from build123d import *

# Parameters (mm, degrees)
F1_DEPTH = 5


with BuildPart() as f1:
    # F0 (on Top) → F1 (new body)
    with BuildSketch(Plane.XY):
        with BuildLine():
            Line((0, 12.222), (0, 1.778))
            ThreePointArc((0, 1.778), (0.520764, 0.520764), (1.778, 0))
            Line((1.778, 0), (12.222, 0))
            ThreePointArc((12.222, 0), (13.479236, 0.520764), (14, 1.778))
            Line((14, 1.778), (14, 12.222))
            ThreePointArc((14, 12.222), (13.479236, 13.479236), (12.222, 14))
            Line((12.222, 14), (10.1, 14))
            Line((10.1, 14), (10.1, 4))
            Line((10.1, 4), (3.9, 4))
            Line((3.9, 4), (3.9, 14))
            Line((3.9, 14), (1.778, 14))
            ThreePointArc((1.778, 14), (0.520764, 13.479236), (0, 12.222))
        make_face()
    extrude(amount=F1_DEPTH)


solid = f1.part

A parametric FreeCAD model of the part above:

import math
import FreeCAD as App
import Part
import Sketcher
from FreeCAD import Vector

doc = App.newDocument("Part")
body = doc.addObject("PartDesign::Body", "Body")

sketch1 = doc.addObject("Sketcher::SketchObject", "Sketch")
body.addObject(sketch1)
sketch1.AttachmentSupport = (doc.XY_Plane, [""])
sketch1.MapMode = "FlatFace"
sketch1.addGeometry([
    Part.LineSegment(Vector(0, 12.222, 0), Vector(0, 1.778, 0)),
    Part.ArcOfCircle(Part.Circle(Vector(1.778, 1.778, 0), Vector(0, 0, 1), 1.778), math.radians(179.999984), math.radians(270.000016)),
    Part.LineSegment(Vector(1.778, 0, 0), Vector(12.222, 0, 0)),
    Part.ArcOfCircle(Part.Circle(Vector(12.222, 1.778, 0), Vector(0, 0, 1), 1.778), math.radians(-90.000016), math.radians(0.000016)),
    Part.LineSegment(Vector(14, 1.778, 0), Vector(14, 12.222, 0)),
    Part.ArcOfCircle(Part.Circle(Vector(12.222, 12.222, 0), Vector(0, 0, 1), 1.778), math.radians(-0.000016), math.radians(90.000016)),
    Part.LineSegment(Vector(12.222, 14, 0), Vector(10.1, 14, 0)),
    Part.LineSegment(Vector(10.1, 14, 0), Vector(10.1, 4, 0)),
    Part.LineSegment(Vector(10.1, 4, 0), Vector(3.9, 4, 0)),
    Part.LineSegment(Vector(3.9, 4, 0), Vector(3.9, 14, 0)),
    Part.LineSegment(Vector(3.9, 14, 0), Vector(1.778, 14, 0)),
    Part.ArcOfCircle(Part.Circle(Vector(1.778, 12.222, 0), Vector(0, 0, 1), 1.778), math.radians(89.999984), math.radians(180.000016)),
], False)
sketch1.addConstraint([
    Sketcher.Constraint("Tangent", 0, 2, 1, 1),
    Sketcher.Constraint("Tangent", 1, 2, 2, 1),
    Sketcher.Constraint("Tangent", 2, 2, 3, 1),
    Sketcher.Constraint("Tangent", 3, 2, 4, 1),
    Sketcher.Constraint("Tangent", 4, 2, 5, 1),
    Sketcher.Constraint("Tangent", 5, 2, 6, 1),
    Sketcher.Constraint("Coincident", 6, 2, 7, 1),
    Sketcher.Constraint("Coincident", 7, 2, 8, 1),
    Sketcher.Constraint("Coincident", 8, 2, 9, 1),
    Sketcher.Constraint("Coincident", 9, 2, 10, 1),
    Sketcher.Constraint("Tangent", 10, 2, 11, 1),
    Sketcher.Constraint("Tangent", 11, 2, 0, 1),
    Sketcher.Constraint("Vertical", 0),
    Sketcher.Constraint("Horizontal", 2),
    Sketcher.Constraint("Vertical", 4),
    Sketcher.Constraint("Horizontal", 6),
    Sketcher.Constraint("Vertical", 7),
    Sketcher.Constraint("Horizontal", 8),
    Sketcher.Constraint("Vertical", 9),
    Sketcher.Constraint("Horizontal", 10),
    Sketcher.Constraint("Equal", 1, 3),
    Sketcher.Constraint("Equal", 3, 5),
    Sketcher.Constraint("Equal", 5, 11),
    Sketcher.Constraint("PointOnObject", 0, 2, -2),
    Sketcher.Constraint("PointOnObject", 1, 2, -1),
    Sketcher.Constraint("Horizontal", 5, 3, 11, 3),
    Sketcher.Constraint("Equal", 6, 10),
    Sketcher.Constraint("Equal", 2, 0),
    Sketcher.Constraint("DistanceY", 7, 2, 7, 1, 10.0),
    Sketcher.Constraint("DistanceX", 8, 2, 8, 1, 6.2),
    Sketcher.Constraint("DistanceX", -1, 1, 3, 2, 14.0),
    Sketcher.Constraint("Radius", 1, 1.778),
])
pad1 = doc.addObject("PartDesign::Pad", "Pad")
body.addObject(pad1)
pad1.Profile = sketch1
pad1.Length = 5

doc.recompute()
